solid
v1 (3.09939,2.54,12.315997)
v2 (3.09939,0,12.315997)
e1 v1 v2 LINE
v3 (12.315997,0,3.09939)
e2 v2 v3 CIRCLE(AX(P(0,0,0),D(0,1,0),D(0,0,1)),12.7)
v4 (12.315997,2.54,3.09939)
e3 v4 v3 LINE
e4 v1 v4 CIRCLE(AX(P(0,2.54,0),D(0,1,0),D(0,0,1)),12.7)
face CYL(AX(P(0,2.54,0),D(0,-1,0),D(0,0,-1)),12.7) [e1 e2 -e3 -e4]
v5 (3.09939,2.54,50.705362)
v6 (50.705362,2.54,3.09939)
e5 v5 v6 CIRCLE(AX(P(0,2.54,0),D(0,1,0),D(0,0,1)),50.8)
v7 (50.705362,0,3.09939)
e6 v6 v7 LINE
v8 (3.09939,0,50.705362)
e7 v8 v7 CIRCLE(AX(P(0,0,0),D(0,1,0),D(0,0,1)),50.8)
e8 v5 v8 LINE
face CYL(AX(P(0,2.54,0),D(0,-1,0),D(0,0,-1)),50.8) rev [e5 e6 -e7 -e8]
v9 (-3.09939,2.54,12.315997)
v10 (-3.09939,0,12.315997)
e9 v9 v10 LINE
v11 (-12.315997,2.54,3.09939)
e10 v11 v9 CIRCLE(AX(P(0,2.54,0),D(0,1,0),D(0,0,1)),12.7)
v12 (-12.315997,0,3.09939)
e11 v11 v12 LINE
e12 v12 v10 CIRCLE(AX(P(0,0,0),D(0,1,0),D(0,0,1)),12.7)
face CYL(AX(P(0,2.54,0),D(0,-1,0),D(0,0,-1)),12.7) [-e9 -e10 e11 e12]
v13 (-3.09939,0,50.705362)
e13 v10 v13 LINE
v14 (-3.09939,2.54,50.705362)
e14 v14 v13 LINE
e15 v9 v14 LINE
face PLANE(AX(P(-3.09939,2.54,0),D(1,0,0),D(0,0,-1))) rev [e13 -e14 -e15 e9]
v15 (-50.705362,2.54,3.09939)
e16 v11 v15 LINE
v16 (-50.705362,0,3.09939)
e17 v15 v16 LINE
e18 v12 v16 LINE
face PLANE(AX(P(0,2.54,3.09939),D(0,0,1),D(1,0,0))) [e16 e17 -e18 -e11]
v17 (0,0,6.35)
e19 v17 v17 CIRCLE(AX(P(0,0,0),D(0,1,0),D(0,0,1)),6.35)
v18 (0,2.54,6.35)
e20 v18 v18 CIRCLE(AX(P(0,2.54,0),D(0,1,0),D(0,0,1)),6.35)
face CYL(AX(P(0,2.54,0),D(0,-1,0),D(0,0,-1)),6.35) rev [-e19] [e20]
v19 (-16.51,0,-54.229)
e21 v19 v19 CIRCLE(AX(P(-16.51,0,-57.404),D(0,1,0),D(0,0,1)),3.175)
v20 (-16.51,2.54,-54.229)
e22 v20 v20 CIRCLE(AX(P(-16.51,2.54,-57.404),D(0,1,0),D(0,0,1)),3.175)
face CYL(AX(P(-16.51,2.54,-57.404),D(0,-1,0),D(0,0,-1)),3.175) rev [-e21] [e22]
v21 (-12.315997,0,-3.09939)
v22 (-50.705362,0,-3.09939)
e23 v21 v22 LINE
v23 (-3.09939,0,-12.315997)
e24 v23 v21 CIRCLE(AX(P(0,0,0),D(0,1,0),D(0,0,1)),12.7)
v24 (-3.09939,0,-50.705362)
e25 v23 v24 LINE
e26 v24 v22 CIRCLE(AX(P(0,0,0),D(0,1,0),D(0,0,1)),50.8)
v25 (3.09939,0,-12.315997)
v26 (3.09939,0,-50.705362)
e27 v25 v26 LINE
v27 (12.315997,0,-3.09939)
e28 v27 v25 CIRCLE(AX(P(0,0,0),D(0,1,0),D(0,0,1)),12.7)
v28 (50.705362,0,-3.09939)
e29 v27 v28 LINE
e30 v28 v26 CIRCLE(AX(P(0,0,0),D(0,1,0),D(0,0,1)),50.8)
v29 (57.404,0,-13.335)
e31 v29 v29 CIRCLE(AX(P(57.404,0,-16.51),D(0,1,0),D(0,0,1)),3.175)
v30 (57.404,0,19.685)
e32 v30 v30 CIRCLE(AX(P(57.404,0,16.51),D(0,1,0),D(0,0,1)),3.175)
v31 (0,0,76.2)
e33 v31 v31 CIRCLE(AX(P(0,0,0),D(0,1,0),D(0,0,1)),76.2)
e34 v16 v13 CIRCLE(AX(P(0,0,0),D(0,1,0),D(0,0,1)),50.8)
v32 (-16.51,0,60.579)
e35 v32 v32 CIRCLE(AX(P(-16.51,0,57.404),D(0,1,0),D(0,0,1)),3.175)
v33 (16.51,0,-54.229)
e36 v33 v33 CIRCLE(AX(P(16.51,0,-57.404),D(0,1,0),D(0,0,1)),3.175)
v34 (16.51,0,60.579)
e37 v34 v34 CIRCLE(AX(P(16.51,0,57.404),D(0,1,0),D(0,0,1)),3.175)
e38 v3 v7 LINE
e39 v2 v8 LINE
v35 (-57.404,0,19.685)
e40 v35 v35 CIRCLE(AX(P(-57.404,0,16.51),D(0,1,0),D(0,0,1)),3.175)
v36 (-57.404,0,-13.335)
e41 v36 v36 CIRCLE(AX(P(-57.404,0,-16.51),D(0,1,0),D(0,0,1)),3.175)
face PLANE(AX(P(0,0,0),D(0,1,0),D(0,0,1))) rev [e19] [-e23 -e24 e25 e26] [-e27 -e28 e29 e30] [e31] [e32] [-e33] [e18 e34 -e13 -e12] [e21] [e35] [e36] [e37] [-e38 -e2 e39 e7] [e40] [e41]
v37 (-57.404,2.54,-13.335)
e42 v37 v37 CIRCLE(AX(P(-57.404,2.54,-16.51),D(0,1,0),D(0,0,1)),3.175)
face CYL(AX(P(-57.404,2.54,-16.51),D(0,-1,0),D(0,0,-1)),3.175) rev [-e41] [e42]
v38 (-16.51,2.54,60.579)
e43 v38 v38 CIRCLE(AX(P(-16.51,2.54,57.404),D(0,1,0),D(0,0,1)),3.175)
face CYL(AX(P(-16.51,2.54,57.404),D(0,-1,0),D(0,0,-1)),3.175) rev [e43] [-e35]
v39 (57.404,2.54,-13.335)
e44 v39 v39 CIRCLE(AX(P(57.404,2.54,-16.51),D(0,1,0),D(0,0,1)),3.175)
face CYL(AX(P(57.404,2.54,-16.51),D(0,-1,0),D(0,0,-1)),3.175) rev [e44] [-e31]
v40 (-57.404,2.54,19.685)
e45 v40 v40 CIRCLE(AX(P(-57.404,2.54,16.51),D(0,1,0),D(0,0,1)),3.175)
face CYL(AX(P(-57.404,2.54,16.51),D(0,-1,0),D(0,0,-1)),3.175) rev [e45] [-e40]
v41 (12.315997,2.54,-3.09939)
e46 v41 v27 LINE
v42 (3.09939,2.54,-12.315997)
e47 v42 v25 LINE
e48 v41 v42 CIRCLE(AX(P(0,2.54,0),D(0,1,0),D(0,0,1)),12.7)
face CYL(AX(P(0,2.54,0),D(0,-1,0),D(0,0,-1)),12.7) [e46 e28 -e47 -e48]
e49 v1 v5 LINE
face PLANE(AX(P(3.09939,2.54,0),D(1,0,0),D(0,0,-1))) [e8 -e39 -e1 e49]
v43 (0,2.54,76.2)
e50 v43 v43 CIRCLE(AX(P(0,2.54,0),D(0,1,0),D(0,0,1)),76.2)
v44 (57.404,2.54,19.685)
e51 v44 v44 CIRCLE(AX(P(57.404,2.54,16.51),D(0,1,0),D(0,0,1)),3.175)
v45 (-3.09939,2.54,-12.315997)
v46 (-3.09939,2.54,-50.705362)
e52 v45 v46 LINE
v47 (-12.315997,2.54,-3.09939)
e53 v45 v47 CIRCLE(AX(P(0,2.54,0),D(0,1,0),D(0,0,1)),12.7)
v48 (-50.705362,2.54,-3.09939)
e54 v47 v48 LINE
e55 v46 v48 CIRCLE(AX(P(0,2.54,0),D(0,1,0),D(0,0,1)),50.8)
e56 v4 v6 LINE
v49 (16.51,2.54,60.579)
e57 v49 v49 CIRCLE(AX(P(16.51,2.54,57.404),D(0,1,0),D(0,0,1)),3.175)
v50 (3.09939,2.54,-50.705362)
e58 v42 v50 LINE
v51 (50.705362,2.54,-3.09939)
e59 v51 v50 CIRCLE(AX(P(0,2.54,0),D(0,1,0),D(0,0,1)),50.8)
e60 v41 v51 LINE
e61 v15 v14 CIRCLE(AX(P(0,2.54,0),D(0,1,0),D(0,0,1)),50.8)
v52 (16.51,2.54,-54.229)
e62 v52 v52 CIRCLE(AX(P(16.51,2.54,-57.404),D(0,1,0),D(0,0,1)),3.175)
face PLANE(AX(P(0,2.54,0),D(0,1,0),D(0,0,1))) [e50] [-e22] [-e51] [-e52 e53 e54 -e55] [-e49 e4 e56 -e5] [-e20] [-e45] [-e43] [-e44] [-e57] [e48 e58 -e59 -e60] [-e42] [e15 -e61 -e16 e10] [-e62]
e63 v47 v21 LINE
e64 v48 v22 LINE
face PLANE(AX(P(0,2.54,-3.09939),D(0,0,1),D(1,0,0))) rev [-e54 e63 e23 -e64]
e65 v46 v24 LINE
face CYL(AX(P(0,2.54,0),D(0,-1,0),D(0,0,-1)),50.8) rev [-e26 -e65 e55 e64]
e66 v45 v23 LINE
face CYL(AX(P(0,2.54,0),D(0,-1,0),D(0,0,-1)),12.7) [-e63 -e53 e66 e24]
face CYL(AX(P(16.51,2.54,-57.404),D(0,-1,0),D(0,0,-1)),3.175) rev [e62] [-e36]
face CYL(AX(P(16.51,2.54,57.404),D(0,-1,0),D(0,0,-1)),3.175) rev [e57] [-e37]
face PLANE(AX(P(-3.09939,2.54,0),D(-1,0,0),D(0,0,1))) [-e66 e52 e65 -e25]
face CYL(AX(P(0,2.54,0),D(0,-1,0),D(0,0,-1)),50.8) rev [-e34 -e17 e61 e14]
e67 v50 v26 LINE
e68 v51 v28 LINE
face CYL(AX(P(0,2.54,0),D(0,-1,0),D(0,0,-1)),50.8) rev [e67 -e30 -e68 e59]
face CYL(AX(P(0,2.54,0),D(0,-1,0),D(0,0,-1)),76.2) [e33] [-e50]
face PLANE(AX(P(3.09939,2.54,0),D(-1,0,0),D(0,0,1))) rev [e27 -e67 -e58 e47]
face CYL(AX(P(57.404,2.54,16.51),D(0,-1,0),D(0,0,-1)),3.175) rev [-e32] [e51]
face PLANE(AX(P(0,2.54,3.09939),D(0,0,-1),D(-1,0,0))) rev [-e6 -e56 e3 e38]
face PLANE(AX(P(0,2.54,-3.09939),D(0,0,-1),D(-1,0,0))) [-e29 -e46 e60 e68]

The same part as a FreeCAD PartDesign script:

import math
import FreeCAD as App
import Part
import Sketcher
from FreeCAD import Vector
Q = App.Units.Quantity

doc = App.newDocument("Part")
params = doc.addObject("Spreadsheet::Sheet", "Params")
for row, (alias, value) in enumerate([
    ("sketch1_diameter", "6 in"),
    ("sketch1_radius", "2 in"),
    ("sketch1_diameter2", "0.5 in"),
    ("sketch1_radius2", "0.5 in"),
    ("sketch1_diameter3", "0.25 in"),
    ("pad1_length", "0.1 in"),
], start=1):
    params.set(f"A{row}", alias)
    params.set(f"B{row}", "=" + value)
    params.setAlias(f"B{row}", alias)

body = doc.addObject("PartDesign::Body", "Body")

sketch1 = doc.addObject("Sketcher::SketchObject", "Sketch")
body.addObject(sketch1)
sketch1.AttachmentSupport = (doc.XZ_Plane, [""])
sketch1.MapMode = "FlatFace"
sketch1.addGeometry([
    Part.Circle(Vector(0, 0, 0), Vector(0, 0, 1), 76.2),
    Part.Circle(Vector(-57.4, -16.5, 0), Vector(0, 0, 1), 3.2),
    Part.Circle(Vector(-16.5, -57.4, 0), Vector(0, 0, 1), 3.2),
    Part.LineSegment(Vector(-3.1, -50.7, 0), Vector(-3.1, -12.3, 0)),
    Part.ArcOfCircle(Part.Circle(Vector(0, 0, 0), Vector(0, 0, 1), 12.7), math.radians(-166), math.radians(-104)),
    Part.LineSegment(Vector(-12.3, -3.1, 0), Vector(-50.7, -3.1, 0)),
    Part.ArcOfCircle(Part.Circle(Vector(0, 0, 0), Vector(0, 0, 1), 50.8), math.radians(-177), math.radians(-93)),
    Part.Circle(Vector(-57.4, 16.5, 0), Vector(0, 0, 1), 3.2),
    Part.ArcOfCircle(Part.Circle(Vector(0, 0, 0), Vector(0, 0, 1), 12.7), math.radians(104), math.radians(166)),
    Part.LineSegment(Vector(-3.1, 12.3, 0), Vector(-3.1, 50.7, 0)),
    Part.ArcOfCircle(Part.Circle(Vector(0, 0, 0), Vector(0, 0, 1), 50.8), math.radians(93), math.radians(177)),
    Part.LineSegment(Vector(-50.7, 3.1, 0), Vector(-12.3, 3.1, 0)),
    Part.Circle(Vector(-16.5, 57.4, 0), Vector(0, 0, 1), 3.2),
    Part.Circle(Vector(16.5, -57.4, 0), Vector(0, 0, 1), 3.2),
    Part.ArcOfCircle(Part.Circle(Vector(0, 0, 0), Vector(0, 0, 1), 12.7), math.radians(-76), math.radians(-14)),
    Part.LineSegment(Vector(3.1, -12.3, 0), Vector(3.1, -50.7, 0)),
    Part.ArcOfCircle(Part.Circle(Vector(0, 0, 0), Vector(0, 0, 1), 50.8), math.radians(-87), math.radians(-3)),
    Part.LineSegment(Vector(50.7, -3.1, 0), Vector(12.3, -3.1, 0)),
    Part.Circle(Vector(57.4, -16.5, 0), Vector(0, 0, 1), 3.2),
    Part.Circle(Vector(0, 0, 0), Vector(0, 0, 1), 6.3),
    Part.ArcOfCircle(Part.Circle(Vector(0, 0, 0), Vector(0, 0, 1), 12.7), math.radians(14), math.radians(76)),
    Part.LineSegment(Vector(12.3, 3.1, 0), Vector(50.7, 3.1, 0)),
    Part.ArcOfCircle(Part.Circle(Vector(0, 0, 0), Vector(0, 0, 1), 50.8), math.radians(3), math.radians(87)),
    Part.LineSegment(Vector(3.1, 50.7, 0), Vector(3.1, 12.3, 0)),
    Part.Circle(Vector(16.5, 57.4, 0), Vector(0, 0, 1), 3.2),
    Part.Circle(Vector(57.4, 16.5, 0), Vector(0, 0, 1), 3.2),
], False)
sketch1.addConstraint([
    Sketcher.Constraint("Coincident", 3, 2, 4, 2),
    Sketcher.Constraint("Coincident", 4, 1, 5, 1),
    Sketcher.Constraint("Coincident", 5, 2, 6, 1),
    Sketcher.Constraint("Coincident", 6, 2, 3, 1),
    Sketcher.Constraint("Coincident", 8, 1, 9, 1),
    Sketcher.Constraint("Coincident", 9, 2, 10, 1),
    Sketcher.Constraint("Coincident", 10, 2, 11, 1),
    Sketcher.Constraint("Coincident", 11, 2, 8, 2),
    Sketcher.Constraint("Coincident", 14, 1, 15, 1),
    Sketcher.Constraint("Coincident", 15, 2, 16, 1),
    Sketcher.Constraint("Coincident", 16, 2, 17, 1),
    Sketcher.Constraint("Coincident", 17, 2, 14, 2),
    Sketcher.Constraint("Coincident", 20, 1, 21, 1),
    Sketcher.Constraint("Coincident", 21, 2, 22, 1),
    Sketcher.Constraint("Coincident", 22, 2, 23, 1),
    Sketcher.Constraint("Coincident", 23, 2, 20, 2),
    Sketcher.Constraint("Vertical", 3),
    Sketcher.Constraint("Horizontal", 5),
    Sketcher.Constraint("Vertical", 9),
    Sketcher.Constraint("Horizontal", 11),
    Sketcher.Constraint("Vertical", 15),
    Sketcher.Constraint("Horizontal", 17),
    Sketcher.Constraint("Horizontal", 21),
    Sketcher.Constraint("Vertical", 23),
    Sketcher.Constraint("Coincident", 0, 3, -1, 1),
    Sketcher.Constraint("Coincident", 4, 3, -1, 1),
    Sketcher.Constraint("Coincident", 6, 3, -1, 1),
    Sketcher.Constraint("Coincident", 8, 3, -1, 1),
    Sketcher.Constraint("Coincident", 10, 3, -1, 1),
    Sketcher.Constraint("Coincident", 14, 3, -1, 1),
    Sketcher.Constraint("Coincident", 16, 3, -1, 1),
    Sketcher.Constraint("Coincident", 19, 3, -1, 1),
    Sketcher.Constraint("Coincident", 20, 3, -1, 1),
    Sketcher.Constraint("Coincident", 22, 3, -1, 1),
    Sketcher.Constraint("Equal", 1, 2),
    Sketcher.Constraint("Equal", 2, 7),
    Sketcher.Constraint("Equal", 4, 8),
    Sketcher.Constraint("Equal", 6, 10),
    Sketcher.Constraint("Equal", 7, 12),
    Sketcher.Constraint("Equal", 12, 13),
    Sketcher.Constraint("Equal", 8, 14),
    Sketcher.Constraint("Equal", 10, 16),
    Sketcher.Constraint("Equal", 13, 18),
    Sketcher.Constraint("Equal", 14, 20),
    Sketcher.Constraint("Equal", 16, 22),
    Sketcher.Constraint("Equal", 18, 24),
    Sketcher.Constraint("Equal", 24, 25),
    Sketcher.Constraint("Symmetric", 12, 3, 13, 3, -1, 1),
    Sketcher.Constraint("Symmetric", 7, 3, 18, 3, -1, 1),
    Sketcher.Constraint("Symmetric", 2, 3, 24, 3, -1, 1),
    Sketcher.Constraint("Symmetric", 1, 3, 25, 3, -1, 1),
    Sketcher.Constraint("Symmetric", 2, 3, 13, 3, -2),
    Sketcher.Constraint("Symmetric", 1, 3, 18, 3, -2),
    Sketcher.Constraint("Horizontal", 3, 2, 14, 1),
    Sketcher.Constraint("Horizontal", 5, 2, 16, 2),
    Sketcher.Constraint("Horizontal", 11, 2, 20, 1),
    Sketcher.Constraint("Horizontal", 9, 2, 22, 2),
    Sketcher.Constraint("Vertical", 6, 2, 8, 1),
    Sketcher.Constraint("Vertical", 5, 2, 10, 2),
    Sketcher.Constraint("Equal", 21, 3),
    Sketcher.Constraint("Diameter", 0, Q("6 in")),
    Sketcher.Constraint("Radius", 6, Q("2 in")),
    Sketcher.Constraint("Diameter", 19, Q("0.5 in")),
    Sketcher.Constraint("Radius", 4, Q("0.5 in")),
    Sketcher.Constraint("Diameter", 1, Q("0.25 in")),
    Sketcher.Constraint("DistanceY", 1, 3, 7, 3, Q("1.3 in")),
    Sketcher.Constraint("DistanceX", 2, 3, 13, 3, Q("1.3 in")),
    Sketcher.Constraint("DistanceX", 1, 3, -1, 1, Q("2.26 in")),
    Sketcher.Constraint("DistanceY", 2, 3, -1, 1, Q("2.26 in")),
    Sketcher.Constraint("DistanceX", 5, 2, 5, 1, 38.389365),
])
sketch1.setExpression("Constraints[60]", "Params.sketch1_diameter")
sketch1.setExpression("Constraints[61]", "Params.sketch1_radius")
sketch1.setExpression("Constraints[62]", "Params.sketch1_diameter2")
sketch1.setExpression("Constraints[63]", "Params.sketch1_radius2")
sketch1.setExpression("Constraints[64]", "Params.sketch1_diameter3")
pad1 = doc.addObject("PartDesign::Pad", "Pad")
body.addObject(pad1)
pad1.Profile = sketch1
pad1.setExpression("Length", "Params.pad1_length")
pad1.Reversed = True

doc.recompute()
